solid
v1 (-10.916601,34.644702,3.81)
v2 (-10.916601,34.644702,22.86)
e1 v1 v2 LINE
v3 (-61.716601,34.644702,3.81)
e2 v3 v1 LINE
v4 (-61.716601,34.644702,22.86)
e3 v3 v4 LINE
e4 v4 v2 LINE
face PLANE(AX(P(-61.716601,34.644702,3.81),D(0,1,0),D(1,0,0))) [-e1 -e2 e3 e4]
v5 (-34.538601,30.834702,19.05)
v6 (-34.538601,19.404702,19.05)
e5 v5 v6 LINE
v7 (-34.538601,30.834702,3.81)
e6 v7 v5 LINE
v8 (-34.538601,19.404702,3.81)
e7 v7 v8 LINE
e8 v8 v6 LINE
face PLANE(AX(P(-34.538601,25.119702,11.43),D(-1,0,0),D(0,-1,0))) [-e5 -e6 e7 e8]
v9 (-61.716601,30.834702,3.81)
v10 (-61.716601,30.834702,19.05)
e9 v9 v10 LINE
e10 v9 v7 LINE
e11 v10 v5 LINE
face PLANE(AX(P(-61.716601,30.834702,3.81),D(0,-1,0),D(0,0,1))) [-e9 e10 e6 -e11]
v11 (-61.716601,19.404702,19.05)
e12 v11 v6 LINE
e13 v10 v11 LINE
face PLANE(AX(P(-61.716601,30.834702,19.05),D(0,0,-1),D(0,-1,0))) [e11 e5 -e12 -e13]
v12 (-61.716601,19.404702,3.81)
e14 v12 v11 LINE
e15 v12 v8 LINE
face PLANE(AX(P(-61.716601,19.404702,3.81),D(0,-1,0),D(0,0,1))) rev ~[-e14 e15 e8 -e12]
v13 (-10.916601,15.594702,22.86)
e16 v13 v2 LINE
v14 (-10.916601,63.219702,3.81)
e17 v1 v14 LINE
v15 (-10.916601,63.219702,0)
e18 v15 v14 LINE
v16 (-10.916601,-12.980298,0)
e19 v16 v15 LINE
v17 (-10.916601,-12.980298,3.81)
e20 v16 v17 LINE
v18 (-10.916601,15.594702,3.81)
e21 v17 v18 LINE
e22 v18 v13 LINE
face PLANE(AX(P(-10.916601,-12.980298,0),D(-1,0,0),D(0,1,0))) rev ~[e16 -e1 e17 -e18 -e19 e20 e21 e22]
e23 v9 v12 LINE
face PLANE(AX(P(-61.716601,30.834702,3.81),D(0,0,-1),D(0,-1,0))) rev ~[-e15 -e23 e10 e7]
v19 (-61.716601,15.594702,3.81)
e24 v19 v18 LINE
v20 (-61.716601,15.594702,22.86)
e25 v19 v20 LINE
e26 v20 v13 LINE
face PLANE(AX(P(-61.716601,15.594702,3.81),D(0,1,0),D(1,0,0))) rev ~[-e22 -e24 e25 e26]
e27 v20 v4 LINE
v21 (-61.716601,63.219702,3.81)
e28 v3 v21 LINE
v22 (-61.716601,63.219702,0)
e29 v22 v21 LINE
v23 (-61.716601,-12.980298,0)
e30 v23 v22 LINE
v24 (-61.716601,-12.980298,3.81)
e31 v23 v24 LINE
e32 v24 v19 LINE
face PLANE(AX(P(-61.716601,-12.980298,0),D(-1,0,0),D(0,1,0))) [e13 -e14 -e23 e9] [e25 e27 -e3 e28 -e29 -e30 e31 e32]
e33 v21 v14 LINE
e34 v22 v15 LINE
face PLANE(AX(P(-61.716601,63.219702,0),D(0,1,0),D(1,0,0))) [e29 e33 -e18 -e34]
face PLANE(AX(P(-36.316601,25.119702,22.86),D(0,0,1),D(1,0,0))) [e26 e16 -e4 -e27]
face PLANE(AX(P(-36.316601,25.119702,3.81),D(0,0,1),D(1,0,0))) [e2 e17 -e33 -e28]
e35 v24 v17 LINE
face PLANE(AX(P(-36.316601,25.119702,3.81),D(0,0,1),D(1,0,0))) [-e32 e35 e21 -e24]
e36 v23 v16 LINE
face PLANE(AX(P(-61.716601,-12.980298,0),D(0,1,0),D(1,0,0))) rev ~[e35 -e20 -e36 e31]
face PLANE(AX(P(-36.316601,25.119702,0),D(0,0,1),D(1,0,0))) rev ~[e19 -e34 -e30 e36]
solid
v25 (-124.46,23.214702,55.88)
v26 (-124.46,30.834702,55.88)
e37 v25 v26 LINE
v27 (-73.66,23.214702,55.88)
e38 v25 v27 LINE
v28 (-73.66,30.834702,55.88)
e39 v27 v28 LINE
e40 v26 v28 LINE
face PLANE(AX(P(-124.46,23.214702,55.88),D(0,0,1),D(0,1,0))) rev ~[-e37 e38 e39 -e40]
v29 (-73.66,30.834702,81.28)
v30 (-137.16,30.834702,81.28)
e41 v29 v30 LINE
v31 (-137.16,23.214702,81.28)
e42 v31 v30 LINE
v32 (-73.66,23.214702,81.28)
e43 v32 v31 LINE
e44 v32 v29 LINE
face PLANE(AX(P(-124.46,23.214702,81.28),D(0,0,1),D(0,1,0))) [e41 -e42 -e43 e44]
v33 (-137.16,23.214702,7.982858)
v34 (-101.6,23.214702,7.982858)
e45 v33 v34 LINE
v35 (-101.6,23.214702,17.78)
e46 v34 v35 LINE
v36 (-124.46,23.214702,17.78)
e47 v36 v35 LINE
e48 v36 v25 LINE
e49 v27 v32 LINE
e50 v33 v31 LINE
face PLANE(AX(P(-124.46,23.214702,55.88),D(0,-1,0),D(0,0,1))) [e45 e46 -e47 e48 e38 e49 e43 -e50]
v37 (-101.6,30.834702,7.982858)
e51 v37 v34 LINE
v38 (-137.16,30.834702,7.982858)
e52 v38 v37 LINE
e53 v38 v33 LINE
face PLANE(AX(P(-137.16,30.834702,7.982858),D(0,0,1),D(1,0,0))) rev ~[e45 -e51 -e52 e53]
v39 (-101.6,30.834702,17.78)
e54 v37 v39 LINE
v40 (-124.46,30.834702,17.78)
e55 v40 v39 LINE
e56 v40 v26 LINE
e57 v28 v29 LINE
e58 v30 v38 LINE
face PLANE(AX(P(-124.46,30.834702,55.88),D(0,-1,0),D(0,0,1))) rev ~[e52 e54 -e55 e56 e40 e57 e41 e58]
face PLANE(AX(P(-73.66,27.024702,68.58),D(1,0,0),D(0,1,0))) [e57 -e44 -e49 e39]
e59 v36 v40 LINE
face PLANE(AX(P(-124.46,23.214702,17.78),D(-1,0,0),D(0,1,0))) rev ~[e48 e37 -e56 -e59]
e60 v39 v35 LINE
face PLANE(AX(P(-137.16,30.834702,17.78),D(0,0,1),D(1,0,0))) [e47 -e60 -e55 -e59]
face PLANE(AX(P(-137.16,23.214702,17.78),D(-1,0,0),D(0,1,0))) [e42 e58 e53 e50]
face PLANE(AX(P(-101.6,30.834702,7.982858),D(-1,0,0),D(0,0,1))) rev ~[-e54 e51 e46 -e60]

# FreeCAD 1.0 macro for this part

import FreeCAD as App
import Part
import Sketcher

V = App.Vector
Q = App.Units.Quantity

doc = App.newDocument("Part")
body = doc.addObject("PartDesign::Body", "Body")

# Sketch on XY plane
sketch1 = body.newObject("Sketcher::SketchObject", "Sketch")
sketch1.AttachmentSupport = (doc.getObject("XY_Plane"), [""])
sketch1.MapMode = "FlatFace"
sketch1.addGeometry([
    Part.LineSegment(V(-62, 63, 0), V(-62, -13, 0)),
    Part.LineSegment(V(-62, -13, 0), V(-11, -13, 0)),
    Part.LineSegment(V(-11, -13, 0), V(-11, 63, 0)),
    Part.LineSegment(V(-11, 63, 0), V(-62, 63, 0)),
], False)
sketch1.addConstraint([
    Sketcher.Constraint("Coincident", 0, 2, 1, 1),
    Sketcher.Constraint("Coincident", 1, 2, 2, 1),
    Sketcher.Constraint("Coincident", 2, 2, 3, 1),
    Sketcher.Constraint("Coincident", 3, 2, 0, 1),
    Sketcher.Constraint("Vertical", 0),
    Sketcher.Constraint("Horizontal", 1),
    Sketcher.Constraint("Vertical", 2),
    Sketcher.Constraint("Horizontal", 3),
    Sketcher.Constraint("DistanceX", 1, 1, 1, 2, Q("2 in")),
    Sketcher.Constraint("DistanceY", 0, 2, 0, 1, Q("3 in")),
    Sketcher.Constraint("DistanceX", 0, 2, -1, 1, Q("61.716601 mm")),
    Sketcher.Constraint("DistanceY", 0, 2, -1, 1, Q("12.980298 mm")),
])
pad1 = body.newObject("PartDesign::Pad", "Pad")
pad1.Profile = sketch1
pad1.Length = Q("0.15 in")

# Sketch on XY plane
sketch2 = body.newObject("Sketcher::SketchObject", "Sketch001")
sketch2.AttachmentSupport = (doc.getObject("XY_Plane"), [""])
sketch2.MapMode = "FlatFace"
sketch2.AttachmentOffset = App.Placement(V(0, 0, 0.15 * 25.4), App.Rotation())
sketch2.addGeometry([
    Part.LineSegment(V(-62, 35, 0), V(-62, 16, 0)),
    Part.LineSegment(V(-62, 16, 0), V(-11, 16, 0)),
    Part.LineSegment(V(-11, 16, 0), V(-11, 35, 0)),
    Part.LineSegment(V(-11, 35, 0), V(-62, 35, 0)),
], False)
sketch2.addConstraint([
    Sketcher.Constraint("Coincident", 0, 2, 1, 1),
    Sketcher.Constraint("Coincident", 1, 2, 2, 1),
    Sketcher.Constraint("Coincident", 2, 2, 3, 1),
    Sketcher.Constraint("Coincident", 3, 2, 0, 1),
    Sketcher.Constraint("Vertical", 0),
    Sketcher.Constraint("Horizontal", 1),
    Sketcher.Constraint("Vertical", 2),
    Sketcher.Constraint("Horizontal", 3),
    Sketcher.Constraint("DistanceX", 1, 1, 1, 2, Q("2 in")),
    Sketcher.Constraint("DistanceY", 0, 2, 0, 1, Q("0.75 in")),
    Sketcher.Constraint("DistanceX", 0, 2, -1, 1, Q("61.716601 mm")),
    Sketcher.Constraint("DistanceY", -1, 1, 0, 2, Q("15.594702 mm")),
])
pad2 = body.newObject("PartDesign::Pad", "Pad001")
pad2.Profile = sketch2
pad2.Length = Q("0.75 in")

# Sketch on YZ plane
sketch3 = body.newObject("Sketcher::SketchObject", "Sketch002")
sketch3.AttachmentSupport = (doc.getObject("YZ_Plane"), [""])
sketch3.MapMode = "FlatFace"
sketch3.AttachmentOffset = App.Placement(V(0, 0, -61.716601), App.Rotation())
sketch3.addGeometry([
    Part.LineSegment(V(31, 19, 0), V(31, 4, 0)),
    Part.LineSegment(V(31, 4, 0), V(19, 4, 0)),
    Part.LineSegment(V(19, 4, 0), V(19, 19, 0)),
    Part.LineSegment(V(19, 19, 0), V(31, 19, 0)),
], False)
sketch3.addConstraint([
    Sketcher.Constraint("Coincident", 0, 2, 1, 1),
    Sketcher.Constraint("Coincident", 1, 2, 2, 1),
    Sketcher.Constraint("Coincident", 2, 2, 3, 1),
    Sketcher.Constraint("Coincident", 3, 2, 0, 1),
    Sketcher.Constraint("Vertical", 0),
    Sketcher.Constraint("Horizontal", 1),
    Sketcher.Constraint("Vertical", 2),
    Sketcher.Constraint("Horizontal", 3),
    Sketcher.Constraint("DistanceY", 0, 2, 0, 1, Q("0.6 in")),
    Sketcher.Constraint("DistanceX", 1, 2, 1, 1, Q("0.45 in")),
    Sketcher.Constraint("DistanceY", -1, 1, 0, 2, Q("0.15 in")),
    Sketcher.Constraint("DistanceX", -1, 1, 0, 2, Q("30.834702 mm")),
])
pocket1 = body.newObject("PartDesign::Pocket", "Pocket")
pocket1.Profile = sketch3
pocket1.Length = Q("1.07 in")
pocket1.Reversed = True
body2 = doc.addObject("PartDesign::Body", "Body001")

# Sketch on XZ plane
sketch4 = body2.newObject("Sketcher::SketchObject", "Sketch003")
sketch4.AttachmentSupport = (doc.getObject("XZ_Plane001"), [""])
sketch4.MapMode = "FlatFace"
sketch4.AttachmentOffset = App.Placement(V(0, 0, -30.834702), App.Rotation())
sketch4.addGeometry([
    Part.LineSegment(V(-137, 18, 0), V(-137, 8, 0)),
    Part.LineSegment(V(-137, 8, 0), V(-102, 8, 0)),
    Part.LineSegment(V(-102, 8, 0), V(-102, 18, 0)),
    Part.LineSegment(V(-102, 18, 0), V(-137, 18, 0)),
], False)
sketch4.addConstraint([
    Sketcher.Constraint("Coincident", 0, 2, 1, 1),
    Sketcher.Constraint("Coincident", 1, 2, 2, 1),
    Sketcher.Constraint("Coincident", 2, 2, 3, 1),
    Sketcher.Constraint("Coincident", 3, 2, 0, 1),
    Sketcher.Constraint("Vertical", 0),
    Sketcher.Constraint("Horizontal", 1),
    Sketcher.Constraint("Vertical", 2),
    Sketcher.Constraint("Horizontal", 3),
    Sketcher.Constraint("DistanceX", 1, 1, 1, 2, Q("1.4 in")),
    Sketcher.Constraint("DistanceX", 1, 2, -1, 1, Q("4 in")),
    Sketcher.Constraint("DistanceY", -1, 1, 2, 2, Q("0.7 in")),
    Sketcher.Constraint("DistanceY", 0, 2, 0, 1, Q("9.797143 mm")),
])
pad3 = body2.newObject("PartDesign::Pad", "Pad002")
pad3.Profile = sketch4
pad3.Length = Q("0.3 in")

# Sketch on XY plane
sketch5 = body2.newObject("Sketcher::SketchObject", "Sketch004")
sketch5.AttachmentSupport = (doc.getObject("XY_Plane001"), [""])
sketch5.MapMode = "FlatFace"
sketch5.AttachmentOffset = App.Placement(V(0, 0, 0.7 * 25.4), App.Rotation())
sketch5.addGeometry([
    Part.LineSegment(V(-137, 31, 0), V(-137, 23, 0)),
    Part.LineSegment(V(-137, 23, 0), V(-124, 23, 0)),
    Part.LineSegment(V(-124, 23, 0), V(-124, 31, 0)),
    Part.LineSegment(V(-124, 31, 0), V(-137, 31, 0)),
], False)
sketch5.addConstraint([
    Sketcher.Constraint("Coincident", 0, 2, 1, 1),
    Sketcher.Constraint("Coincident", 1, 2, 2, 1),
    Sketcher.Constraint("Coincident", 2, 2, 3, 1),
    Sketcher.Constraint("Coincident", 3, 2, 0, 1),
    Sketcher.Constraint("Vertical", 0),
    Sketcher.Constraint("Horizontal", 1),
    Sketcher.Constraint("Vertical", 2),
    Sketcher.Constraint("Horizontal", 3),
    Sketcher.Constraint("DistanceX", 1, 1, 1, 2, Q("0.5 in")),
    Sketcher.Constraint("DistanceY", 0, 2, 0, 1, Q("0.3 in")),
    Sketcher.Constraint("DistanceX", 0, 2, -1, 1, Q("5.4 in")),
    Sketcher.Constraint("DistanceY", -1, 1, 0, 2, Q("23.214702 mm")),
])
pad4 = body2.newObject("PartDesign::Pad", "Pad003")
pad4.Profile = sketch5
pad4.Length = Q("2.5 in")

# Sketch on YZ plane
sketch6 = body2.newObject("Sketcher::SketchObject", "Sketch005")
sketch6.AttachmentSupport = (doc.getObject("YZ_Plane001"), [""])
sketch6.MapMode = "FlatFace"
sketch6.AttachmentOffset = App.Placement(V(0, 0, -4.9 * 25.4), App.Rotation())
sketch6.addGeometry([
    Part.LineSegment(V(23, 81, 0), V(23, 56, 0)),
    Part.LineSegment(V(23, 56, 0), V(31, 56, 0)),
    Part.LineSegment(V(31, 56, 0), V(31, 81, 0)),
    Part.LineSegment(V(31, 81, 0), V(23, 81, 0)),
], False)
sketch6.addConstraint([
    Sketcher.Constraint("Coincident", 0, 2, 1, 1),
    Sketcher.Constraint("Coincident", 1, 2, 2, 1),
    Sketcher.Constraint("Coincident", 2, 2, 3, 1),
    Sketcher.Constraint("Coincident", 3, 2, 0, 1),
    Sketcher.Constraint("Vertical", 0),
    Sketcher.Constraint("Horizontal", 1),
    Sketcher.Constraint("Vertical", 2),
    Sketcher.Constraint("Horizontal", 3),
    Sketcher.Constraint("DistanceY", 0, 2, 0, 1, Q("1 in")),
    Sketcher.Constraint("DistanceX", 1, 1, 1, 2, Q("0.3 in")),
    Sketcher.Constraint("DistanceY", -1, 1, 0, 2, Q("2.2 in")),
    Sketcher.Constraint("DistanceX", -1, 1, 0, 2, Q("23.214702 mm")),
])
pad5 = body2.newObject("PartDesign::Pad", "Pad004")
pad5.Profile = sketch6
pad5.Length = Q("2 in")

doc.recompute()
